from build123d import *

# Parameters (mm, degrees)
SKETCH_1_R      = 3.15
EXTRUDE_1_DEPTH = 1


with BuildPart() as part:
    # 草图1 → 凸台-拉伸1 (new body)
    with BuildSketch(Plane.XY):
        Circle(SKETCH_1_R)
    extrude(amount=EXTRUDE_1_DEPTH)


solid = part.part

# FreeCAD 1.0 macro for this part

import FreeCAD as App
import Part
import Sketcher

doc = App.newDocument("Part")
body = doc.addObject("PartDesign::Body", "Body")

# Sketch on XY plane
sketch1 = body.newObject("Sketcher::SketchObject", "Sketch")
sketch1.AttachmentSupport = (doc.getObject("XY_Plane"), [""])
sketch1.MapMode = "FlatFace"
sketch1.addGeometry(Part.Circle(App.Vector(0, 0, 0), App.Vector(0, 0, 1), 3.1), False)
sketch1.addConstraint(Sketcher.Constraint("Coincident", 0, 3, -1, 1))
sketch1.addConstraint(Sketcher.Constraint("Diameter", 0, 6.3))
pad1 = body.newObject("PartDesign::Pad", "Pad")
pad1.Profile = sketch1
pad1.Length = 1

doc.recompute()
